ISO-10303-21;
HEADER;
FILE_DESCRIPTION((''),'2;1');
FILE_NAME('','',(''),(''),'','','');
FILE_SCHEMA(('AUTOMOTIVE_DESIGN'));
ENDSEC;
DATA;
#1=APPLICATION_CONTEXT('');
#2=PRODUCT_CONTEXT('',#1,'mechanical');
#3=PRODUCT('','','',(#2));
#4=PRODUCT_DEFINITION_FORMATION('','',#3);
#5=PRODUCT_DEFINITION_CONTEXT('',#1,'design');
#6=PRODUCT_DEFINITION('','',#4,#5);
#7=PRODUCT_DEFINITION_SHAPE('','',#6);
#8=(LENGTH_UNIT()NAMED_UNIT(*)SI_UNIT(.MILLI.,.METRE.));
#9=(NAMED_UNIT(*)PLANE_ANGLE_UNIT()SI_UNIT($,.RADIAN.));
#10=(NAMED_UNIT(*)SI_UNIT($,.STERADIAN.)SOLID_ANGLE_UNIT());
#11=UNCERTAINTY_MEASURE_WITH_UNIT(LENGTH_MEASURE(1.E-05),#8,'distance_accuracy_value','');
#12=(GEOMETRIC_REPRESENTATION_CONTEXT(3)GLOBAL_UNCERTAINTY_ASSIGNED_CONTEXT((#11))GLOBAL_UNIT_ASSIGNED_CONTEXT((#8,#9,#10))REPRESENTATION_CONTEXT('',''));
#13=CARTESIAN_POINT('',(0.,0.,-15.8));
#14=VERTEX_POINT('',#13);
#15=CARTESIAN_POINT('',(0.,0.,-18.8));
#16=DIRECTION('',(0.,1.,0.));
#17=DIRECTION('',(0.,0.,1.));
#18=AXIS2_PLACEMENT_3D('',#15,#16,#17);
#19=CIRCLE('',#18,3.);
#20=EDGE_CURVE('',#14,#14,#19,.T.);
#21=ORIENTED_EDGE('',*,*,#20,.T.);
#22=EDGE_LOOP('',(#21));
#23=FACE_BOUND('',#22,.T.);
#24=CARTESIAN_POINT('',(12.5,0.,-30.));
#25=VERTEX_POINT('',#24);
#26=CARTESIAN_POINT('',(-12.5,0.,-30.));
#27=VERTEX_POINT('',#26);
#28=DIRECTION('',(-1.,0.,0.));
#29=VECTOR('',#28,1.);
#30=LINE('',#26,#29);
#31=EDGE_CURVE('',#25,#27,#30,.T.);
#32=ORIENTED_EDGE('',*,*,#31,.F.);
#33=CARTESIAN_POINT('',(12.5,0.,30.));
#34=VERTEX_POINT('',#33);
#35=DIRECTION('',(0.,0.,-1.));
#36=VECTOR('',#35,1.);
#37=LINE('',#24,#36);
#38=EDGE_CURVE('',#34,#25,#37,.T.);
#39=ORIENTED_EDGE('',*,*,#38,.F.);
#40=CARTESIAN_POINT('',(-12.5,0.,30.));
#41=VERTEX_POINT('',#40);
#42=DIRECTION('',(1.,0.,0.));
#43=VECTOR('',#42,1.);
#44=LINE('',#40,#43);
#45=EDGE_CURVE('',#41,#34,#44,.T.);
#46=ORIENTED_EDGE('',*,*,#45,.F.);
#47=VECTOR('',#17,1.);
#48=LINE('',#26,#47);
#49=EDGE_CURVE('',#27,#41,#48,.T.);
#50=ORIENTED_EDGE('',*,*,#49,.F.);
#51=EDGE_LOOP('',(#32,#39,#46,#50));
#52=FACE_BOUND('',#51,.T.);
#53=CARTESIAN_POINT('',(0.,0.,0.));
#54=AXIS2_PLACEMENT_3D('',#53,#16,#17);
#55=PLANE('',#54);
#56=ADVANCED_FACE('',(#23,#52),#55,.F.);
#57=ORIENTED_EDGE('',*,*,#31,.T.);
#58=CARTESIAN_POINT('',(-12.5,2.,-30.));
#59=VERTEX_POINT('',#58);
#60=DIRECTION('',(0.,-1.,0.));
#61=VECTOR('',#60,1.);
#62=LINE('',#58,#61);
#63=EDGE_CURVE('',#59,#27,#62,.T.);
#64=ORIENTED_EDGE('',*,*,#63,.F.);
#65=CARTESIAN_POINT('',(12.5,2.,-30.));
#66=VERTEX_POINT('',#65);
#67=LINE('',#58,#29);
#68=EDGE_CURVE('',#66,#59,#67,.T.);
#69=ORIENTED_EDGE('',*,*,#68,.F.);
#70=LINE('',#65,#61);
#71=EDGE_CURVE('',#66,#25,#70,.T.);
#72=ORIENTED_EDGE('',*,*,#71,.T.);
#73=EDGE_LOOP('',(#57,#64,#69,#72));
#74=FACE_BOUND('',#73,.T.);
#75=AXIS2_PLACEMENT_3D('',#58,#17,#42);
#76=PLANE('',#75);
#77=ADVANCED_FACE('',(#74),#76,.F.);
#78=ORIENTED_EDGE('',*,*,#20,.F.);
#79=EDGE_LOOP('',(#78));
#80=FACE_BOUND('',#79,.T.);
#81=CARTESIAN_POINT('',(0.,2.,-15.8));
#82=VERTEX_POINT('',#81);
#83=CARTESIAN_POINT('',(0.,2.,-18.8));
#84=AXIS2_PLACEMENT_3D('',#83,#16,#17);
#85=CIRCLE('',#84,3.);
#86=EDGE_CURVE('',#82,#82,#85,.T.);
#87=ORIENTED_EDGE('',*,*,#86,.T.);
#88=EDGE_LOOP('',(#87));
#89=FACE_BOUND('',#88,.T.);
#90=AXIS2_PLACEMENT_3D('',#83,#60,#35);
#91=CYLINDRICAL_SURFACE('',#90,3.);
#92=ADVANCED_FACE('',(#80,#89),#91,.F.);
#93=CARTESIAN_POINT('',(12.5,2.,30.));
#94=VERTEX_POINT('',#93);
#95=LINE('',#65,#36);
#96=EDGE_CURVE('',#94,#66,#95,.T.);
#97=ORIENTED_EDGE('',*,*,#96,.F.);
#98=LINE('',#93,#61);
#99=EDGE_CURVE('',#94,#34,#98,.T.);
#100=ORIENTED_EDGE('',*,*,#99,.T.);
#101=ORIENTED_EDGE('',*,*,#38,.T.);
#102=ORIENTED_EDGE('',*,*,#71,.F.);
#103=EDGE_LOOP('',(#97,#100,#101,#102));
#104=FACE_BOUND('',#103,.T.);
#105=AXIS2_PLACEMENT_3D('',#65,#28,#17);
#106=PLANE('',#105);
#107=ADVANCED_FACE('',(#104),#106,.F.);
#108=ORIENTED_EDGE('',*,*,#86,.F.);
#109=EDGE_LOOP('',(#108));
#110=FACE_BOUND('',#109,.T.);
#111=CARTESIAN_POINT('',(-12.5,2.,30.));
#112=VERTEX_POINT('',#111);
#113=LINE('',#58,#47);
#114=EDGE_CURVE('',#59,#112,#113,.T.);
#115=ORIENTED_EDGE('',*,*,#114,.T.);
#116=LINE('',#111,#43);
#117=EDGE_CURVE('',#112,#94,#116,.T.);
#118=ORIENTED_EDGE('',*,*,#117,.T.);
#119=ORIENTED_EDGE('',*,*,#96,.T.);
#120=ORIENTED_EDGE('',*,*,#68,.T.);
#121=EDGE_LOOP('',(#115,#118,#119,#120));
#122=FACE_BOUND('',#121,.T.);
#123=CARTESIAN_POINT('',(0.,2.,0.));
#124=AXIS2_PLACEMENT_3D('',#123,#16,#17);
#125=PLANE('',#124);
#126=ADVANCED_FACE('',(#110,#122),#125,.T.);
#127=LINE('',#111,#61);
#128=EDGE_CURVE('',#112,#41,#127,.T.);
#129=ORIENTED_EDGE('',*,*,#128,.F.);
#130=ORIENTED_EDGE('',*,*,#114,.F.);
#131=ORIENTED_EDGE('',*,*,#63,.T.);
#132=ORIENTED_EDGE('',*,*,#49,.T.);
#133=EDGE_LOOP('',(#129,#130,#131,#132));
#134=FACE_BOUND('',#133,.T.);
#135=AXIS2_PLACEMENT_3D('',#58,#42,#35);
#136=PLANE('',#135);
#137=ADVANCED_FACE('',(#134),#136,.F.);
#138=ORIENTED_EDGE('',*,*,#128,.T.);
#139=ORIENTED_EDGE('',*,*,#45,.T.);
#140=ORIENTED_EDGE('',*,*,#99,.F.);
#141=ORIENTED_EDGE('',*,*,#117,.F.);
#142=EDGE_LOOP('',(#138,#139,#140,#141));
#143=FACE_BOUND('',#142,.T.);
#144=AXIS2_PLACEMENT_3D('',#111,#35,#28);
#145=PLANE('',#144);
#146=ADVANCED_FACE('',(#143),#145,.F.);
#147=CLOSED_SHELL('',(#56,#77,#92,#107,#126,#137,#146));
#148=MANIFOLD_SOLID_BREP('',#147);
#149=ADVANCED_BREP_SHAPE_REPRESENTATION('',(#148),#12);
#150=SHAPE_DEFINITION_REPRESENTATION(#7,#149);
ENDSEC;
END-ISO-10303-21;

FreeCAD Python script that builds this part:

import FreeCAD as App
import Part
import Sketcher
from FreeCAD import Vector
Q = App.Units.Quantity


def add_polygon(sketch, points):
    """Adds a closed chain of lines whose ends are joined by coincident constraints."""
    first, n = sketch.GeometryCount, len(points)
    for a, b in zip(points, points[1:] + points[:1]):
        sketch.addGeometry(Part.LineSegment(App.Vector(*a, 0), App.Vector(*b, 0)), False)
    for i in range(n):
        sketch.addConstraint(Sketcher.Constraint("Coincident", first + i, 2, first + (i + 1) % n, 1))

doc = App.newDocument("Part")
body = doc.addObject("PartDesign::Body", "Body")

# Sketch on XZ plane
sketch1 = body.newObject("Sketcher::SketchObject", "Sketch")
sketch1.AttachmentSupport = (doc.getObject("XZ_Plane"), [""])
sketch1.MapMode = "FlatFace"
add_polygon(sketch1, [(-12.5, -30), (-12.5, 30), (12.5, 30), (12.5, -30)])  # lines 0-3
sketch1.addGeometry(Part.Circle(Vector(0, -18.8, 0), Vector(0, 0, 1), 3), False)  # 4
sketch1.addConstraint(Sketcher.Constraint("Vertical", 0))
sketch1.addConstraint(Sketcher.Constraint("Horizontal", 1))
sketch1.addConstraint(Sketcher.Constraint("Vertical", 2))
sketch1.addConstraint(Sketcher.Constraint("Horizontal", 3))
sketch1.addConstraint(Sketcher.Constraint("Symmetric", 0, 2, 2, 2, -1, 1))
sketch1.addConstraint(Sketcher.Constraint("PointOnObject", 4, 3, -2))
sketch1.addConstraint(Sketcher.Constraint("Diameter", 4, Q("6 mm")))
sketch1.addConstraint(Sketcher.Constraint("DistanceX", 1, 1, 1, 2, Q("25 mm")))
sketch1.addConstraint(Sketcher.Constraint("DistanceY", 0, 1, 0, 2, Q("60 mm")))
sketch1.addConstraint(Sketcher.Constraint("DistanceY", 4, 3, -1, 1, Q("18.8 mm")))
pad1 = body.newObject("PartDesign::Pad", "Pad")
pad1.Profile = sketch1
pad1.Length = 2
pad1.Reversed = True

doc.recompute()
